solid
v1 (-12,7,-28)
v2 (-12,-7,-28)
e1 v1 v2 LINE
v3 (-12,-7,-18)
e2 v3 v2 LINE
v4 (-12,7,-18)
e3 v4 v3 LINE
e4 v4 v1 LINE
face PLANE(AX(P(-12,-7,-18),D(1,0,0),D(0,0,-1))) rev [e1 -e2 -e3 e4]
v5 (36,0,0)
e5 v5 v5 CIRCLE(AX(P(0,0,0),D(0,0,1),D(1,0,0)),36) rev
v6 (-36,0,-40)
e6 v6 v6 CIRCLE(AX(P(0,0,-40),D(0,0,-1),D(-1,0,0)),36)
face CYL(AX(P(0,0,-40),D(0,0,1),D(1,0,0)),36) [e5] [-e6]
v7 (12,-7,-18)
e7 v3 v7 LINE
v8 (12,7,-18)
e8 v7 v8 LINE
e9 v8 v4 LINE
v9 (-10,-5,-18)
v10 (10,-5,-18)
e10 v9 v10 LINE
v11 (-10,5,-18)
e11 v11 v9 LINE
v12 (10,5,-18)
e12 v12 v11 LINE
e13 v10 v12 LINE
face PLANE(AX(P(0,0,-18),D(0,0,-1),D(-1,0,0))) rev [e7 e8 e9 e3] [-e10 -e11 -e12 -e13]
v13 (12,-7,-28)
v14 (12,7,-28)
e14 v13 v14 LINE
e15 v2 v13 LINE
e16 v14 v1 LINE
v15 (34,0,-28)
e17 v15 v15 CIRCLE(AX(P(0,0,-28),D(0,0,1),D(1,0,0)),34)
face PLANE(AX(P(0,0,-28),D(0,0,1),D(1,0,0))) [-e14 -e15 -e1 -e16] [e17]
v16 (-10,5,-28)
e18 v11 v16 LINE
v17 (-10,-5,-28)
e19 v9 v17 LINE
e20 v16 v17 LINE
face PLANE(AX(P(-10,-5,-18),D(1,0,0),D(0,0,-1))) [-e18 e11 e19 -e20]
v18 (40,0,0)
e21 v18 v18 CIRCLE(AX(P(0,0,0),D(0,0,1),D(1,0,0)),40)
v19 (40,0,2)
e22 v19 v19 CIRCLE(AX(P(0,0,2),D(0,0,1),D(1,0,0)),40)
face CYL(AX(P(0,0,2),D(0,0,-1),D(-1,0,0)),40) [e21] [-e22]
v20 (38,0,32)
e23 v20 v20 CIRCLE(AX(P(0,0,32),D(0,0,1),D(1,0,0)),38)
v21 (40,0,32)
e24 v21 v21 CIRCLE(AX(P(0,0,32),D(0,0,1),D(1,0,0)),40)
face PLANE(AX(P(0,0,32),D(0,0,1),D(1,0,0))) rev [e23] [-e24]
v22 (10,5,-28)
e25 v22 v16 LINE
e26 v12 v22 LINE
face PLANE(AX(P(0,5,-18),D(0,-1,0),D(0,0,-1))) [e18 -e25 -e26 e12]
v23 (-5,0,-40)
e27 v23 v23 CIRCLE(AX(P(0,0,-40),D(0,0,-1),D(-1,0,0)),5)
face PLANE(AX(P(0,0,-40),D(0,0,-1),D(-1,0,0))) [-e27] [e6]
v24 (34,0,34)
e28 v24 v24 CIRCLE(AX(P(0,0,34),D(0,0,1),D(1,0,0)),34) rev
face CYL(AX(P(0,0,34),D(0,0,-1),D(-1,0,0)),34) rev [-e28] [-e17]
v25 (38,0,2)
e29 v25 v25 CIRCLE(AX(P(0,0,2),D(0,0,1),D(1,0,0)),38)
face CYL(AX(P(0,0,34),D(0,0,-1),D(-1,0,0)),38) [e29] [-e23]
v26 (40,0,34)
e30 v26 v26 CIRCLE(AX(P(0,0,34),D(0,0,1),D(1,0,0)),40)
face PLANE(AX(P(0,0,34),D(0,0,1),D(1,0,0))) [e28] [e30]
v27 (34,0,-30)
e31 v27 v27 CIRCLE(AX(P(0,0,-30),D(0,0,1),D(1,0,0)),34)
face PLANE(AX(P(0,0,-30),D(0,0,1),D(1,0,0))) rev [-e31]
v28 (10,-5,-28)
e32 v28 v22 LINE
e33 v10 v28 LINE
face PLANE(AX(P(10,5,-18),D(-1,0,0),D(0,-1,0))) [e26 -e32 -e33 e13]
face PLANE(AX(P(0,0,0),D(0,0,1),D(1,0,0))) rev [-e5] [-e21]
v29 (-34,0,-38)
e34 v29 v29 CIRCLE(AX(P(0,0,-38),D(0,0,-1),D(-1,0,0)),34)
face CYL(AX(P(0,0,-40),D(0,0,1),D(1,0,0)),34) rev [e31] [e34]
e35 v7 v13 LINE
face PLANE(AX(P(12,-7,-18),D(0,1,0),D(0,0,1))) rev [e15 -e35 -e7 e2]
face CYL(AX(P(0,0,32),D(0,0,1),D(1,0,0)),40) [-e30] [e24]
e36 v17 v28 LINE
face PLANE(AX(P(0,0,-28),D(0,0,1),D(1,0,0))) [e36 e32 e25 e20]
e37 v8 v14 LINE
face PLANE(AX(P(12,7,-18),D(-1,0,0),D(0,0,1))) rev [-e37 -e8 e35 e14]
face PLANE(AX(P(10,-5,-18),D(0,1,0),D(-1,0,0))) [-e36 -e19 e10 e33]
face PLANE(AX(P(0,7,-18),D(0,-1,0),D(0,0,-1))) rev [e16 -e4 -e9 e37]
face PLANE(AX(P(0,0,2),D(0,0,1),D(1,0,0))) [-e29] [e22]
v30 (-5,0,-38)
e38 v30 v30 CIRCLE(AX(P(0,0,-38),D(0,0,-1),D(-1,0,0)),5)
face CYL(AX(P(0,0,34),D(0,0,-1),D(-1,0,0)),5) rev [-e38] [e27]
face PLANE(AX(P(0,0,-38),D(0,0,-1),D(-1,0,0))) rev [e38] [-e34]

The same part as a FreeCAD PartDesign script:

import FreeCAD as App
import Part
import Sketcher


def add_polygon(sketch, points):
    """Adds a closed chain of lines whose ends are joined by coincident constraints."""
    first, n = sketch.GeometryCount, len(points)
    for a, b in zip(points, points[1:] + points[:1]):
        sketch.addGeometry(Part.LineSegment(App.Vector(*a, 0), App.Vector(*b, 0)), False)
    for i in range(n):
        sketch.addConstraint(Sketcher.Constraint("Coincident", first + i, 2, first + (i + 1) % n, 1))

doc = App.newDocument("Part")
params = doc.addObject("Spreadsheet::Sheet", "Params")
for row, (alias, value) in enumerate([
    ("sketch1_diameter", "76 mm"),
    ("sketch1_diameter2", "72 mm"),
    ("pad1_length", "34 mm"),
    ("sketch2_diameter", "80 mm"),
    ("sketch2_diameter2", "76 mm"),
    ("pad2_length", "2 mm"),
    ("sketch3_diameter", "80 mm"),
    ("sketch3_diameter2", "76 mm"),
    ("pad3_length", "2 mm"),
    ("sketch4_diameter", "72 mm"),
    ("sketch4_diameter2", "68 mm"),
    ("pad4_length", "40 mm"),
    ("sketch5_diameter", "68 mm"),
    ("pad5_length", "2 mm"),
    ("sketch6_diameter", "10 mm"),
    ("sketch7_diameter", "68 mm"),
    ("pad6_length", "2 mm"),
    ("sketch8_width", "24 mm"),
    ("sketch8_width2", "20 mm"),
    ("sketch8_height", "14 mm"),
    ("sketch8_height2", "10 mm"),
    ("pad7_length", "10 mm"),
    ("sketch9_diameter", "72 mm"),
    ("sketch9_diameter2", "68 mm"),
    ("pad8_length", "34 mm"),
], start=1):
    params.set(f"A{row}", alias)
    params.set(f"B{row}", "=" + value)
    params.setAlias(f"B{row}", alias)

body = doc.addObject("PartDesign::Body", "Body")

sketch1 = doc.addObject("Sketcher::SketchObject", "Sketch")
body.addObject(sketch1)
sketch1.AttachmentSupport = (doc.XY_Plane, [""])
sketch1.MapMode = "FlatFace"
sketch1.addGeometry([
    Part.Circle(App.Vector(0, 0, 0), App.Vector(0, 0, 1), 38),
    Part.Circle(App.Vector(0, 0, 0), App.Vector(0, 0, 1), 36),
], False)
sketch1.addConstraint([
    Sketcher.Constraint("Coincident", 0, 3, -1, 1),
    Sketcher.Constraint("Coincident", 1, 3, -1, 1),
    Sketcher.Constraint("Diameter", 0, 76.0),
    Sketcher.Constraint("Diameter", 1, 72.0),
])
sketch1.setExpression("Constraints[2]", "Params.sketch1_diameter")
sketch1.setExpression("Constraints[3]", "Params.sketch1_diameter2")
pad1 = doc.addObject("PartDesign::Pad", "Pad")
body.addObject(pad1)
pad1.Profile = sketch1
pad1.setExpression("Length", "Params.pad1_length")

sketch2 = doc.addObject("Sketcher::SketchObject", "Sketch001")
body.addObject(sketch2)
sketch2.AttachmentSupport = (doc.XY_Plane, [""])
sketch2.MapMode = "FlatFace"
sketch2.AttachmentOffset = App.Placement(App.Vector(0, 0, 32), App.Rotation())
sketch2.addGeometry([
    Part.Circle(App.Vector(0, 0, 0), App.Vector(0, 0, 1), 40),
    Part.Circle(App.Vector(0, 0, 0), App.Vector(0, 0, 1), 38),
], False)
sketch2.addConstraint([
    Sketcher.Constraint("Coincident", 0, 3, -1, 1),
    Sketcher.Constraint("Coincident", 1, 3, -1, 1),
    Sketcher.Constraint("Diameter", 0, 80.0),
    Sketcher.Constraint("Diameter", 1, 76.0),
])
sketch2.setExpression("Constraints[2]", "Params.sketch2_diameter")
sketch2.setExpression("Constraints[3]", "Params.sketch2_diameter2")
pad2 = doc.addObject("PartDesign::Pad", "Pad001")
body.addObject(pad2)
pad2.Profile = sketch2
pad2.setExpression("Length", "Params.pad2_length")

sketch3 = doc.addObject("Sketcher::SketchObject", "Sketch002")
body.addObject(sketch3)
sketch3.AttachmentSupport = (doc.XY_Plane, [""])
sketch3.MapMode = "FlatFace"
sketch3.addGeometry([
    Part.Circle(App.Vector(0, 0, 0), App.Vector(0, 0, 1), 40),
    Part.Circle(App.Vector(0, 0, 0), App.Vector(0, 0, 1), 38),
], False)
sketch3.addConstraint([
    Sketcher.Constraint("Coincident", 0, 3, -1, 1),
    Sketcher.Constraint("Coincident", 1, 3, -1, 1),
    Sketcher.Constraint("Diameter", 0, 80.0),
    Sketcher.Constraint("Diameter", 1, 76.0),
])
sketch3.setExpression("Constraints[2]", "Params.sketch3_diameter")
sketch3.setExpression("Constraints[3]", "Params.sketch3_diameter2")
pad3 = doc.addObject("PartDesign::Pad", "Pad002")
body.addObject(pad3)
pad3.Profile = sketch3
pad3.setExpression("Length", "Params.pad3_length")
body2 = doc.addObject("PartDesign::Body", "Body001")

sketch4 = doc.addObject("Sketcher::SketchObject", "Sketch003")
body2.addObject(sketch4)
sketch4.AttachmentSupport = (doc.getObject("XY_Plane001"), [""])
sketch4.MapMode = "FlatFace"
sketch4.addGeometry([
    Part.Circle(App.Vector(0, 0, 0), App.Vector(0, 0, 1), 36),
    Part.Circle(App.Vector(0, 0, 0), App.Vector(0, 0, 1), 34),
], False)
sketch4.addConstraint([
    Sketcher.Constraint("Coincident", 0, 3, -1, 1),
    Sketcher.Constraint("Coincident", 1, 3, -1, 1),
    Sketcher.Constraint("Diameter", 0, 72.0),
    Sketcher.Constraint("Diameter", 1, 68.0),
])
sketch4.setExpression("Constraints[2]", "Params.sketch4_diameter")
sketch4.setExpression("Constraints[3]", "Params.sketch4_diameter2")
pad4 = doc.addObject("PartDesign::Pad", "Pad003")
body2.addObject(pad4)
pad4.Profile = sketch4
pad4.setExpression("Length", "Params.pad4_length")
pad4.Reversed = True

sketch5 = doc.addObject("Sketcher::SketchObject", "Sketch004")
body2.addObject(sketch5)
sketch5.AttachmentSupport = (doc.getObject("XY_Plane001"), [""])
sketch5.MapMode = "FlatFace"
sketch5.AttachmentOffset = App.Placement(App.Vector(0, 0, -40), App.Rotation())
sketch5.addGeometry(Part.Circle(App.Vector(0, 0, 0), App.Vector(0, 0, 1), 34), False)
sketch5.addConstraint([
    Sketcher.Constraint("Coincident", 0, 3, -1, 1),
    Sketcher.Constraint("Diameter", 0, 68.0),
])
sketch5.setExpression("Constraints[1]", "Params.sketch5_diameter")
pad5 = doc.addObject("PartDesign::Pad", "Pad004")
body2.addObject(pad5)
pad5.Profile = sketch5
pad5.setExpression("Length", "Params.pad5_length")

sketch6 = doc.addObject("Sketcher::SketchObject", "Sketch005")
body2.addObject(sketch6)
sketch6.AttachmentSupport = (doc.getObject("XY_Plane001"), [""])
sketch6.MapMode = "FlatFace"
sketch6.AttachmentOffset = App.Placement(App.Vector(0, 0, -40), App.Rotation())
sketch6.addGeometry(Part.Circle(App.Vector(0, 0, 0), App.Vector(0, 0, 1), 5), False)
sketch6.addConstraint([
    Sketcher.Constraint("Coincident", 0, 3, -1, 1),
    Sketcher.Constraint("Diameter", 0, 10.0),
])
sketch6.setExpression("Constraints[1]", "Params.sketch6_diameter")
pocket1 = doc.addObject("PartDesign::Pocket", "Pocket")
body2.addObject(pocket1)
pocket1.Profile = sketch6
pocket1.Type = "ThroughAll"
pocket1.Midplane = True

sketch7 = doc.addObject("Sketcher::SketchObject", "Sketch006")
body2.addObject(sketch7)
sketch7.AttachmentSupport = (doc.getObject("XY_Plane001"), [""])
sketch7.MapMode = "FlatFace"
sketch7.AttachmentOffset = App.Placement(App.Vector(0, 0, -30), App.Rotation())
sketch7.addGeometry(Part.Circle(App.Vector(0, 0, 0), App.Vector(0, 0, 1), 34), False)
sketch7.addConstraint([
    Sketcher.Constraint("Coincident", 0, 3, -1, 1),
    Sketcher.Constraint("Diameter", 0, 68.0),
])
sketch7.setExpression("Constraints[1]", "Params.sketch7_diameter")
pad6 = doc.addObject("PartDesign::Pad", "Pad005")
body2.addObject(pad6)
pad6.Profile = sketch7
pad6.setExpression("Length", "Params.pad6_length")

sketch8 = doc.addObject("Sketcher::SketchObject", "Sketch007")
body2.addObject(sketch8)
sketch8.AttachmentSupport = (doc.getObject("XY_Plane001"), [""])
sketch8.MapMode = "FlatFace"
sketch8.AttachmentOffset = App.Placement(App.Vector(0, 0, -28), App.Rotation())
add_polygon(sketch8, [(12, 7), (-12, 7), (-12, -7), (12, -7)])
add_polygon(sketch8, [(10, 5), (10, -5), (-10, -5), (-10, 5)])
sketch8.addConstraint([
    Sketcher.Constraint("Horizontal", 0),
    Sketcher.Constraint("Vertical", 1),
    Sketcher.Constraint("Horizontal", 2),
    Sketcher.Constraint("Vertical", 3),
    Sketcher.Constraint("Vertical", 4),
    Sketcher.Constraint("Horizontal", 5),
    Sketcher.Constraint("Vertical", 6),
    Sketcher.Constraint("Horizontal", 7),
    Sketcher.Constraint("Symmetric", 0, 2, 2, 2, -1, 1),
    Sketcher.Constraint("Symmetric", 4, 2, 6, 2, -1, 1),
    Sketcher.Constraint("DistanceX", 0, 2, 0, 1, 24.0),
    Sketcher.Constraint("DistanceX", 5, 2, 5, 1, 20.0),
    Sketcher.Constraint("DistanceY", 1, 2, 1, 1, 14.0),
    Sketcher.Constraint("DistanceY", 4, 2, 4, 1, 10.0),
])
sketch8.setExpression("Constraints[18]", "Params.sketch8_width")
sketch8.setExpression("Constraints[19]", "Params.sketch8_width2")
sketch8.setExpression("Constraints[20]", "Params.sketch8_height")
sketch8.setExpression("Constraints[21]", "Params.sketch8_height2")
pad7 = doc.addObject("PartDesign::Pad", "Pad006")
body2.addObject(pad7)
pad7.Profile = sketch8
pad7.setExpression("Length", "Params.pad7_length")
body.AllowCompound = True
doc.recompute()

boolean = doc.addObject("PartDesign::Boolean", "Boolean")
body.addObject(boolean)
boolean.Type = "Fuse"
boolean.addObjects([body2])

sketch9 = doc.addObject("Sketcher::SketchObject", "Sketch008")
body.addObject(sketch9)
sketch9.AttachmentSupport = (doc.XY_Plane, [""])
sketch9.MapMode = "FlatFace"
sketch9.addGeometry([
    Part.Circle(App.Vector(0, 0, 0), App.Vector(0, 0, 1), 36),
    Part.Circle(App.Vector(0, 0, 0), App.Vector(0, 0, 1), 34),
], False)
sketch9.addConstraint([
    Sketcher.Constraint("Coincident", 0, 3, -1, 1),
    Sketcher.Constraint("Coincident", 1, 3, -1, 1),
    Sketcher.Constraint("Diameter", 0, 72.0),
    Sketcher.Constraint("Diameter", 1, 68.0),
])
sketch9.setExpression("Constraints[2]", "Params.sketch9_diameter")
sketch9.setExpression("Constraints[3]", "Params.sketch9_diameter2")
pad8 = doc.addObject("PartDesign::Pad", "Pad007")
body.addObject(pad8)
pad8.Profile = sketch9
pad8.setExpression("Length", "Params.pad8_length")

doc.recompute()
